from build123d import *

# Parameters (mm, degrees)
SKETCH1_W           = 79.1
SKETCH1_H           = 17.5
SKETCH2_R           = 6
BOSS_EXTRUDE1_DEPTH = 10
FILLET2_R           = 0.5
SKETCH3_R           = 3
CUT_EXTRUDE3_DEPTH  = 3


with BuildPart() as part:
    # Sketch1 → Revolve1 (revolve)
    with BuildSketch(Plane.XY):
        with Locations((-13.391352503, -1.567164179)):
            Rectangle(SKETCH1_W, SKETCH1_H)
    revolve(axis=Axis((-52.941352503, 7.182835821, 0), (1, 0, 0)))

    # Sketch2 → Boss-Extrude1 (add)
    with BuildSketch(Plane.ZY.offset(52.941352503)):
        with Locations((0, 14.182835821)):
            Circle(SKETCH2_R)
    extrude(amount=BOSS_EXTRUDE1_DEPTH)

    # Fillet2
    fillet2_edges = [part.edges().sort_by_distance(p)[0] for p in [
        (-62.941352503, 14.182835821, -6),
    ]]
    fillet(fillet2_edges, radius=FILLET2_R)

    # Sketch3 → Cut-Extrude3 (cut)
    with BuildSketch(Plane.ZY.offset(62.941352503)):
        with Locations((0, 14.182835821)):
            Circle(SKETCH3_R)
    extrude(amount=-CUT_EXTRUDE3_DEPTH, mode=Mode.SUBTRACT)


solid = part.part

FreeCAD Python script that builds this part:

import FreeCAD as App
import Part
import Sketcher
from FreeCAD import Vector
Q = App.Units.Quantity


def edges_at(feature, points):
    """Names of the edges that pass closest to the given points."""
    edges = feature.Shape.Edges
    near = lambda p: min(range(len(edges)), key=lambda i: edges[i].distToShape(Part.Vertex(*p))[0])
    return sorted({f"Edge{near(p) + 1}" for p in points})

doc = App.newDocument("Part")
body = doc.addObject("PartDesign::Body", "Body")

# Sketch on XY plane
sketch1 = body.newObject("Sketcher::SketchObject", "Sketch")
sketch1.AttachmentSupport = (doc.getObject("XY_Plane"), [""])
sketch1.MapMode = "FlatFace"
sketch1.addGeometry(Part.LineSegment(Vector(-53, 7, 0), Vector(-53, -10, 0)), False)
sketch1.addGeometry(Part.LineSegment(Vector(-53, -10, 0), Vector(26, -10, 0)), False)
sketch1.addGeometry(Part.LineSegment(Vector(26, -10, 0), Vector(26, 7, 0)), False)
sketch1.addGeometry(Part.LineSegment(Vector(26, 7, 0), Vector(-53, 7, 0)), False)
sketch1.addGeometry(Part.LineSegment(Vector(-53, 7, 0), Vector(26, 7, 0)), True)  # axis
sketch1.addConstraint(Sketcher.Constraint("Coincident", 0, 2, 1, 1))
sketch1.addConstraint(Sketcher.Constraint("Coincident", 1, 2, 2, 1))
sketch1.addConstraint(Sketcher.Constraint("Coincident", 2, 2, 3, 1))
sketch1.addConstraint(Sketcher.Constraint("Coincident", 3, 2, 0, 1))
sketch1.addConstraint(Sketcher.Constraint("Vertical", 0))
sketch1.addConstraint(Sketcher.Constraint("Horizontal", 1))
sketch1.addConstraint(Sketcher.Constraint("Vertical", 2))
sketch1.addConstraint(Sketcher.Constraint("Horizontal", 3))
sketch1.addConstraint(Sketcher.Constraint("Horizontal", 4))
sketch1.addConstraint(Sketcher.Constraint("Coincident", 4, 1, 3, 2))
sketch1.addConstraint(Sketcher.Constraint("Vertical", 1, 2, 4, 2))
sketch1.addConstraint(Sketcher.Constraint("DistanceX", 1, 1, 1, 2, Q("79.1 mm")))
sketch1.addConstraint(Sketcher.Constraint("DistanceY", 0, 2, 0, 1, Q("17.5 mm")))
sketch1.addConstraint(Sketcher.Constraint("DistanceX", 0, 2, -1, 1, Q("52.941353 mm")))
sketch1.addConstraint(Sketcher.Constraint("DistanceY", 0, 2, -1, 1, Q("10.317164 mm")))
revolution = body.newObject("PartDesign::Revolution", "Revolution")
revolution.Profile = sketch1
revolution.ReferenceAxis = (sketch1, ["Axis0"])
revolution.Angle = 360

# Sketch on YZ plane
sketch2 = body.newObject("Sketcher::SketchObject", "Sketch001")
sketch2.AttachmentSupport = (doc.getObject("YZ_Plane"), [""])
sketch2.MapMode = "FlatFace"
sketch2.AttachmentOffset = App.Placement(Vector(0, 0, -52.941353), App.Rotation())
sketch2.addGeometry(Part.Circle(Vector(14, 0, 0), Vector(0, 0, 1), 6), False)
sketch2.addConstraint(Sketcher.Constraint("PointOnObject", 0, 3, -1))
sketch2.addConstraint(Sketcher.Constraint("Diameter", 0, Q("12 mm")))
sketch2.addConstraint(Sketcher.Constraint("DistanceX", -1, 1, 0, 3, Q("14.182836 mm")))
pad1 = body.newObject("PartDesign::Pad", "Pad")
pad1.Profile = sketch2
pad1.Length = 10
pad1.Reversed = True
doc.recompute()

fillet = body.newObject("PartDesign::Fillet", "Fillet")
fillet.Base = (pad1, edges_at(pad1, [(-62.941, 14.183, -6)]))
fillet.Radius = 0.5

# Sketch on YZ plane
sketch3 = body.newObject("Sketcher::SketchObject", "Sketch002")
sketch3.AttachmentSupport = (doc.getObject("YZ_Plane"), [""])
sketch3.MapMode = "FlatFace"
sketch3.AttachmentOffset = App.Placement(Vector(0, 0, -62.941353), App.Rotation())
sketch3.addGeometry(Part.Circle(Vector(14.2, 0, 0), Vector(0, 0, 1), 3), False)
sketch3.addConstraint(Sketcher.Constraint("PointOnObject", 0, 3, -1))
sketch3.addConstraint(Sketcher.Constraint("Diameter", 0, Q("6 mm")))
sketch3.addConstraint(Sketcher.Constraint("DistanceX", -1, 1, 0, 3, Q("14.182836 mm")))
pocket1 = body.newObject("PartDesign::Pocket", "Pocket")
pocket1.Profile = sketch3
pocket1.Length = 3
pocket1.Reversed = True

doc.recompute()
